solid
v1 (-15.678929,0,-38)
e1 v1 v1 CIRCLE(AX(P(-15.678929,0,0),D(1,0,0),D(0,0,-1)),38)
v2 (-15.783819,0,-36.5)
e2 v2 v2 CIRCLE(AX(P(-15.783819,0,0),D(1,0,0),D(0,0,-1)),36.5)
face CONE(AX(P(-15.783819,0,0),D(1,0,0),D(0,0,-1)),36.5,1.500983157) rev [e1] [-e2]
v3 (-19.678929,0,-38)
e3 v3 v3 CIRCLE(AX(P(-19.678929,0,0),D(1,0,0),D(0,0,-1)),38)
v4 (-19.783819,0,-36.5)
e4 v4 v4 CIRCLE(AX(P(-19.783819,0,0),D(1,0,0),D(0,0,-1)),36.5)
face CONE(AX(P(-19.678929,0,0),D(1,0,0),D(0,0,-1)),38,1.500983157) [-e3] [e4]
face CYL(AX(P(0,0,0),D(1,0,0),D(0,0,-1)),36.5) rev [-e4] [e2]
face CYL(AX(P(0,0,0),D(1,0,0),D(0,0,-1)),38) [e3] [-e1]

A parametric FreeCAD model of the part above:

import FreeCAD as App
import Part
import Sketcher
Q = App.Units.Quantity

doc = App.newDocument("Part")
body = doc.addObject("PartDesign::Body", "Body")

# Sketch on XY plane
sketch1 = doc.addObject("Sketcher::SketchObject", "Sketch")
body.addObject(sketch1)
sketch1.AttachmentSupport = (doc.XY_Plane, [""])
sketch1.MapMode = "FlatFace"
sketch1.addGeometry([
    Part.LineSegment(App.Vector(-15.7, 38, 0), App.Vector(-19.7, 38, 0)),
    Part.LineSegment(App.Vector(-19.7, 38, 0), App.Vector(-19.8, 36.5, 0)),
    Part.LineSegment(App.Vector(-19.8, 36.5, 0), App.Vector(-15.8, 36.5, 0)),
    Part.LineSegment(App.Vector(-15.8, 36.5, 0), App.Vector(-15.7, 38, 0)),
], False)
sketch1.addConstraint([
    Sketcher.Constraint("Coincident", 0, 2, 1, 1),
    Sketcher.Constraint("Coincident", 1, 2, 2, 1),
    Sketcher.Constraint("Coincident", 2, 2, 3, 1),
    Sketcher.Constraint("Coincident", 3, 2, 0, 1),
    Sketcher.Constraint("Horizontal", 0),
    Sketcher.Constraint("Horizontal", 2),
    Sketcher.Constraint("Parallel", 1, 3),
    Sketcher.Constraint("DistanceX", 0, 2, 0, 1, Q("4 mm")),
    Sketcher.Constraint("Angle", 1, Q("-94 deg")),
    Sketcher.Constraint("DistanceY", -1, 1, 0, 2, Q("38 mm")),
    Sketcher.Constraint("DistanceY", -1, 1, 1, 2, Q("36.5 mm")),
    Sketcher.Constraint("DistanceX", 0, 2, -1, 1, Q("19.678929 mm")),
])
revolution = doc.addObject("PartDesign::Revolution", "Revolution")
body.addObject(revolution)
revolution.Profile = sketch1
revolution.ReferenceAxis = (sketch1, ["H_Axis"])
revolution.Angle = 360

doc.recompute()
